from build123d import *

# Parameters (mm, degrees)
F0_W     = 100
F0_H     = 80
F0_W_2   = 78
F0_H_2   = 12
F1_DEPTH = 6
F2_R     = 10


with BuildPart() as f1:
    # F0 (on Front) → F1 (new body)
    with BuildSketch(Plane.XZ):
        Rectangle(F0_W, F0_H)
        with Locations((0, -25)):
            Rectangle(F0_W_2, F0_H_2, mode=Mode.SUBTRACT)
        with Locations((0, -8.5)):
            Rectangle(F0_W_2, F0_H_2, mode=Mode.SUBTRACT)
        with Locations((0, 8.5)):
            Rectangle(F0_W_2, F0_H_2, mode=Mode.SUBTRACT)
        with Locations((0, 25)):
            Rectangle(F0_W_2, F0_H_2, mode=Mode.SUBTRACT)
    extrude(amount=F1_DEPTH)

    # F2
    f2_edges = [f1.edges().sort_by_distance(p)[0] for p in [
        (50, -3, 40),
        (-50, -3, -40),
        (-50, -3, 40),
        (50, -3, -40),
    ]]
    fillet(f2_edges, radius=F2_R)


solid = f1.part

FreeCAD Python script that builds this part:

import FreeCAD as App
import Part
import Sketcher
Q = App.Units.Quantity


def edges_at(feature, points):
    """Names of the edges that pass closest to the given points."""
    edges = feature.Shape.Edges
    near = lambda p: min(range(len(edges)), key=lambda i: edges[i].distToShape(Part.Vertex(*p))[0])
    return sorted({f"Edge{near(p) + 1}" for p in points})

doc = App.newDocument("Part")
params = doc.addObject("Spreadsheet::Sheet", "Params")
for row, (alias, value) in enumerate([
    ("sketch1_width", "100 mm"),
    ("sketch1_width2", "78 mm"),
    ("sketch1_height", "80 mm"),
    ("sketch1_height2", "12 mm"),
    ("pad1_length", "6 mm"),
    ("fillet_radius", "10 mm"),
], start=1):
    params.set(f"A{row}", alias)
    params.set(f"B{row}", "=" + value)
    params.setAlias(f"B{row}", alias)

body = doc.addObject("PartDesign::Body", "Body")

# Sketch on XZ plane
sketch1 = body.newObject("Sketcher::SketchObject", "Sketch")
sketch1.AttachmentSupport = (doc.getObject("XZ_Plane"), [""])
sketch1.MapMode = "FlatFace"
sketch1.addGeometry([
    Part.LineSegment(App.Vector(-50, 40, 0), App.Vector(-50, -40, 0)),  # 0
    Part.LineSegment(App.Vector(-50, -40, 0), App.Vector(50, -40, 0)),  # 1
    Part.LineSegment(App.Vector(50, -40, 0), App.Vector(50, 40, 0)),  # 2
    Part.LineSegment(App.Vector(50, 40, 0), App.Vector(-50, 40, 0)),  # 3
    Part.LineSegment(App.Vector(39, -31, 0), App.Vector(-39, -31, 0)),  # 4
    Part.LineSegment(App.Vector(-39, -31, 0), App.Vector(-39, -19, 0)),  # 5
    Part.LineSegment(App.Vector(-39, -19, 0), App.Vector(39, -19, 0)),  # 6
    Part.LineSegment(App.Vector(39, -19, 0), App.Vector(39, -31, 0)),  # 7
    Part.LineSegment(App.Vector(39, -14.5, 0), App.Vector(-39, -14.5, 0)),  # 8
    Part.LineSegment(App.Vector(-39, -14.5, 0), App.Vector(-39, -2.5, 0)),  # 9
    Part.LineSegment(App.Vector(-39, -2.5, 0), App.Vector(39, -2.5, 0)),  # 10
    Part.LineSegment(App.Vector(39, -2.5, 0), App.Vector(39, -14.5, 0)),  # 11
    Part.LineSegment(App.Vector(39, 2.5, 0), App.Vector(-39, 2.5, 0)),  # 12
    Part.LineSegment(App.Vector(-39, 2.5, 0), App.Vector(-39, 14.5, 0)),  # 13
    Part.LineSegment(App.Vector(-39, 14.5, 0), App.Vector(39, 14.5, 0)),  # 14
    Part.LineSegment(App.Vector(39, 14.5, 0), App.Vector(39, 2.5, 0)),  # 15
    Part.LineSegment(App.Vector(39, 19, 0), App.Vector(-39, 19, 0)),  # 16
    Part.LineSegment(App.Vector(-39, 19, 0), App.Vector(-39, 31, 0)),  # 17
    Part.LineSegment(App.Vector(-39, 31, 0), App.Vector(39, 31, 0)),  # 18
    Part.LineSegment(App.Vector(39, 31, 0), App.Vector(39, 19, 0)),  # 19
], False)
sketch1.addConstraint([
    Sketcher.Constraint("Coincident", 0, 2, 1, 1),
    Sketcher.Constraint("Coincident", 1, 2, 2, 1),
    Sketcher.Constraint("Coincident", 2, 2, 3, 1),
    Sketcher.Constraint("Coincident", 3, 2, 0, 1),
    Sketcher.Constraint("Coincident", 4, 2, 5, 1),
    Sketcher.Constraint("Coincident", 5, 2, 6, 1),
    Sketcher.Constraint("Coincident", 6, 2, 7, 1),
    Sketcher.Constraint("Coincident", 7, 2, 4, 1),
    Sketcher.Constraint("Coincident", 8, 2, 9, 1),
    Sketcher.Constraint("Coincident", 9, 2, 10, 1),
    Sketcher.Constraint("Coincident", 10, 2, 11, 1),
    Sketcher.Constraint("Coincident", 11, 2, 8, 1),
    Sketcher.Constraint("Coincident", 12, 2, 13, 1),
    Sketcher.Constraint("Coincident", 13, 2, 14, 1),
    Sketcher.Constraint("Coincident", 14, 2, 15, 1),
    Sketcher.Constraint("Coincident", 15, 2, 12, 1),
    Sketcher.Constraint("Coincident", 16, 2, 17, 1),
    Sketcher.Constraint("Coincident", 17, 2, 18, 1),
    Sketcher.Constraint("Coincident", 18, 2, 19, 1),
    Sketcher.Constraint("Coincident", 19, 2, 16, 1),
    Sketcher.Constraint("Vertical", 0),
    Sketcher.Constraint("Horizontal", 1),
    Sketcher.Constraint("Vertical", 2),
    Sketcher.Constraint("Horizontal", 3),
    Sketcher.Constraint("Horizontal", 4),
    Sketcher.Constraint("Vertical", 5),
    Sketcher.Constraint("Horizontal", 6),
    Sketcher.Constraint("Vertical", 7),
    Sketcher.Constraint("Horizontal", 8),
    Sketcher.Constraint("Vertical", 9),
    Sketcher.Constraint("Horizontal", 10),
    Sketcher.Constraint("Vertical", 11),
    Sketcher.Constraint("Horizontal", 12),
    Sketcher.Constraint("Vertical", 13),
    Sketcher.Constraint("Horizontal", 14),
    Sketcher.Constraint("Vertical", 15),
    Sketcher.Constraint("Horizontal", 16),
    Sketcher.Constraint("Vertical", 17),
    Sketcher.Constraint("Horizontal", 18),
    Sketcher.Constraint("Vertical", 19),
    Sketcher.Constraint("Symmetric", 0, 2, 2, 2, -1, 1),
    Sketcher.Constraint("Symmetric", 10, 2, 12, 2, -1, 1),
    Sketcher.Constraint("Symmetric", 8, 2, 14, 2, -1, 1),
    Sketcher.Constraint("Symmetric", 6, 2, 16, 2, -1, 1),
    Sketcher.Constraint("Symmetric", 4, 2, 18, 2, -1, 1),
    Sketcher.Constraint("Vertical", 5, 2, 8, 2),
    Sketcher.Constraint("Vertical", 7, 2, 10, 2),
    Sketcher.Constraint("Vertical", 9, 2, 12, 2),
    Sketcher.Constraint("Equal", 7, 9),
    Sketcher.Constraint("DistanceX", 1, 1, 1, 2, Q("100 mm")),
    Sketcher.Constraint("DistanceX", 4, 2, 4, 1, Q("78 mm")),
    Sketcher.Constraint("DistanceY", 0, 2, 0, 1, Q("80 mm")),
    Sketcher.Constraint("DistanceY", 5, 1, 5, 2, Q("12 mm")),
    Sketcher.Constraint("DistanceY", 4, 2, -1, 1, Q("31 mm")),
    Sketcher.Constraint("DistanceY", 9, 2, 12, 2, Q("5 mm")),
])
sketch1.setExpression("Constraints[49]", "Params.sketch1_width")
sketch1.setExpression("Constraints[50]", "Params.sketch1_width2")
sketch1.setExpression("Constraints[51]", "Params.sketch1_height")
sketch1.setExpression("Constraints[52]", "Params.sketch1_height2")
pad1 = body.newObject("PartDesign::Pad", "Pad")
pad1.Profile = sketch1
pad1.setExpression("Length", "Params.pad1_length")
doc.recompute()

fillet = body.newObject("PartDesign::Fillet", "Fillet")
fillet.Base = (pad1, edges_at(pad1, [
    (50, -3, 40),
    (-50, -3, -40),
    (-50, -3, 40),
    (50, -3, -40),
]))
fillet.setExpression("Radius", "Params.fillet_radius")

doc.recompute()
